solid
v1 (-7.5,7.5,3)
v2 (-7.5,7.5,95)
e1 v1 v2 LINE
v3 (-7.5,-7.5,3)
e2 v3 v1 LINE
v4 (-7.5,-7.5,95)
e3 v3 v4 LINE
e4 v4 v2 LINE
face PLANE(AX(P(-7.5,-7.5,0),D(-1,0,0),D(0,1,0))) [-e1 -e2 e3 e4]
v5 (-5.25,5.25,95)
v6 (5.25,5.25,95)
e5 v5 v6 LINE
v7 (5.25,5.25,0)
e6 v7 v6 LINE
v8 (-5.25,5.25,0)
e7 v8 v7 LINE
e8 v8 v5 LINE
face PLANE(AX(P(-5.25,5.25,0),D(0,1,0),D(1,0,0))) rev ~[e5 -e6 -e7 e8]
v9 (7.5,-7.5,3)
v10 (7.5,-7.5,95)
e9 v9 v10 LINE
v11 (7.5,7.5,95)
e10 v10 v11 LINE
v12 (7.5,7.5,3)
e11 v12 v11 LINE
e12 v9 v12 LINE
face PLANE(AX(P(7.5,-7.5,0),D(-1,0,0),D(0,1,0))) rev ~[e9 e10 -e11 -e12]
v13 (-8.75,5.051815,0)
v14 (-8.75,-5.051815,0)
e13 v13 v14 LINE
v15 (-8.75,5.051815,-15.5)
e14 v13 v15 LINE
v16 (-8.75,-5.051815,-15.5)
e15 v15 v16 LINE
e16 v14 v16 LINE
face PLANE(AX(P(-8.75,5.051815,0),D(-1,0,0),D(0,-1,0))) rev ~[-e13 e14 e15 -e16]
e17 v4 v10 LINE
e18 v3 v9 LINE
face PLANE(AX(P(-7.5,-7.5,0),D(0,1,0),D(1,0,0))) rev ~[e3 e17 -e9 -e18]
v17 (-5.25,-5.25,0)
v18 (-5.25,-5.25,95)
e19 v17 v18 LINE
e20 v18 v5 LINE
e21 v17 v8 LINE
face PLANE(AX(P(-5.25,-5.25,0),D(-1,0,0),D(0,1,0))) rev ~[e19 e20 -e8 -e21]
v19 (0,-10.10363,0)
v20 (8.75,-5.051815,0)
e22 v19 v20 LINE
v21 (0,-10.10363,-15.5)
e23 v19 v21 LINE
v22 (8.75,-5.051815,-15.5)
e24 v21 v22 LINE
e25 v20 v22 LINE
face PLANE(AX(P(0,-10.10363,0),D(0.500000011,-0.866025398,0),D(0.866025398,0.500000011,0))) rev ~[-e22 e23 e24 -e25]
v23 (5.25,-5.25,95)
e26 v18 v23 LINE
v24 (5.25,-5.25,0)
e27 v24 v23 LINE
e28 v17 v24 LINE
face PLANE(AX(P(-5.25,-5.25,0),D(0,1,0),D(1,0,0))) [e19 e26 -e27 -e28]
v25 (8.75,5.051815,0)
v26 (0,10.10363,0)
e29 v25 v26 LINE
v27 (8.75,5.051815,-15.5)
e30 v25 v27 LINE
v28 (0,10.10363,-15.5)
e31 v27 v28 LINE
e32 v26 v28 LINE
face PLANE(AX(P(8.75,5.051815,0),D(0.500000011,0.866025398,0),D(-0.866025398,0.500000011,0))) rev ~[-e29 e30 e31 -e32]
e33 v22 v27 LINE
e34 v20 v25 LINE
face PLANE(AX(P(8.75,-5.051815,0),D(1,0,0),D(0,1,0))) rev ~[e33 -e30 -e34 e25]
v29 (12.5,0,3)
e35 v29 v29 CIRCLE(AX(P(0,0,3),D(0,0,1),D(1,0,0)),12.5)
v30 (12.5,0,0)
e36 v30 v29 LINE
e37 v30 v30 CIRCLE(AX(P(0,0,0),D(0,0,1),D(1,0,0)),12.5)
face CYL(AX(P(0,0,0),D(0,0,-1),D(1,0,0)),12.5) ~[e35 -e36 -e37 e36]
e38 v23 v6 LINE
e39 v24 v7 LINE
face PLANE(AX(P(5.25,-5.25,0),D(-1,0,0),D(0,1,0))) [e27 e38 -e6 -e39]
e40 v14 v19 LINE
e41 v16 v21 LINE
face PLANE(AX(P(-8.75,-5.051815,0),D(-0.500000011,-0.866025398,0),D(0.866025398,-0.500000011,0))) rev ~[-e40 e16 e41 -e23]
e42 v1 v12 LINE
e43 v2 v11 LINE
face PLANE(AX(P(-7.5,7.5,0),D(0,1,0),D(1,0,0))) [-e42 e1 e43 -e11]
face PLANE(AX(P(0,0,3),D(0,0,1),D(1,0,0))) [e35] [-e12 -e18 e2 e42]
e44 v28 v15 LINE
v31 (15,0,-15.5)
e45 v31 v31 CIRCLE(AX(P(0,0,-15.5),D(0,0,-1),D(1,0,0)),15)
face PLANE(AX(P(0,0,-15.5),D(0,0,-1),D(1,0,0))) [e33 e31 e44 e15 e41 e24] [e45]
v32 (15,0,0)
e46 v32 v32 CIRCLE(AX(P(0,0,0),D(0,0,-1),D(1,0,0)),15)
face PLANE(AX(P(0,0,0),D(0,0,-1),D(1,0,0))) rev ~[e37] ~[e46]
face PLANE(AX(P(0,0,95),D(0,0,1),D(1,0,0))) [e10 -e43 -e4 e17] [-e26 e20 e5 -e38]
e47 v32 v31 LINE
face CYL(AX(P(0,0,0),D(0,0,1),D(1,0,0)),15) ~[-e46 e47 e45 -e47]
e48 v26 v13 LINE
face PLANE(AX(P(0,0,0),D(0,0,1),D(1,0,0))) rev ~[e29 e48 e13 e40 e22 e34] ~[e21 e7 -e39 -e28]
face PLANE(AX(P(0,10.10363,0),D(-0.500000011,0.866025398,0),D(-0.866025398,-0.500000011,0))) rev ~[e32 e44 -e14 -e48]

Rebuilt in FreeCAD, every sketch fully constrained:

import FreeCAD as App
import Part
import Sketcher
Q = App.Units.Quantity

doc = App.newDocument("Part")
body = doc.addObject("PartDesign::Body", "Body")

# Sketch on XY plane
sketch1 = doc.addObject("Sketcher::SketchObject", "Sketch")
body.addObject(sketch1)
sketch1.AttachmentSupport = (doc.XY_Plane, [""])
sketch1.MapMode = "FlatFace"
sketch1.addGeometry([
    Part.LineSegment(App.Vector(-8, 8, 0), App.Vector(-8, -8, 0)),  # 0
    Part.LineSegment(App.Vector(-8, -8, 0), App.Vector(8, -8, 0)),  # 1
    Part.LineSegment(App.Vector(8, -8, 0), App.Vector(8, 8, 0)),  # 2
    Part.LineSegment(App.Vector(8, 8, 0), App.Vector(-8, 8, 0)),  # 3
    Part.LineSegment(App.Vector(5, -5, 0), App.Vector(-5, -5, 0)),  # 4
    Part.LineSegment(App.Vector(-5, -5, 0), App.Vector(-5, 5, 0)),  # 5
    Part.LineSegment(App.Vector(-5, 5, 0), App.Vector(5, 5, 0)),  # 6
    Part.LineSegment(App.Vector(5, 5, 0), App.Vector(5, -5, 0)),  # 7
], False)
sketch1.addConstraint([
    Sketcher.Constraint("Coincident", 0, 2, 1, 1),
    Sketcher.Constraint("Coincident", 1, 2, 2, 1),
    Sketcher.Constraint("Coincident", 2, 2, 3, 1),
    Sketcher.Constraint("Coincident", 3, 2, 0, 1),
    Sketcher.Constraint("Coincident", 4, 2, 5, 1),
    Sketcher.Constraint("Coincident", 5, 2, 6, 1),
    Sketcher.Constraint("Coincident", 6, 2, 7, 1),
    Sketcher.Constraint("Coincident", 7, 2, 4, 1),
    Sketcher.Constraint("Vertical", 0),
    Sketcher.Constraint("Horizontal", 1),
    Sketcher.Constraint("Vertical", 2),
    Sketcher.Constraint("Horizontal", 3),
    Sketcher.Constraint("Horizontal", 4),
    Sketcher.Constraint("Vertical", 5),
    Sketcher.Constraint("Horizontal", 6),
    Sketcher.Constraint("Vertical", 7),
    Sketcher.Constraint("Symmetric", 0, 2, 2, 2, -1, 1),
    Sketcher.Constraint("Symmetric", 4, 2, 6, 2, -1, 1),
    Sketcher.Constraint("Equal", 3, 0),
    Sketcher.Constraint("Equal", 6, 5),
    Sketcher.Constraint("DistanceX", 1, 1, 1, 2, Q("15 mm")),
    Sketcher.Constraint("DistanceX", 4, 2, 4, 1, Q("10.5 mm")),
])
pad1 = doc.addObject("PartDesign::Pad", "Pad")
body.addObject(pad1)
pad1.Profile = sketch1
pad1.Length = 95

# Sketch on XY plane
sketch2 = doc.addObject("Sketcher::SketchObject", "Sketch001")
body.addObject(sketch2)
sketch2.AttachmentSupport = (doc.XY_Plane, [""])
sketch2.MapMode = "FlatFace"
sketch2.addGeometry([
    Part.Circle(App.Vector(0, 0, 0), App.Vector(0, 0, 1), 15),  # 0
    Part.LineSegment(App.Vector(9, 5, 0), App.Vector(0, 10, 0)),  # 1
    Part.LineSegment(App.Vector(0, 10, 0), App.Vector(-9, 5, 0)),  # 2
    Part.LineSegment(App.Vector(-9, 5, 0), App.Vector(-9, -5, 0)),  # 3
    Part.LineSegment(App.Vector(-9, -5, 0), App.Vector(0, -10, 0)),  # 4
    Part.LineSegment(App.Vector(0, -10, 0), App.Vector(9, -5, 0)),  # 5
    Part.LineSegment(App.Vector(9, -5, 0), App.Vector(9, 5, 0)),  # 6
], False)
sketch2.addConstraint([
    Sketcher.Constraint("Coincident", 1, 2, 2, 1),
    Sketcher.Constraint("Coincident", 2, 2, 3, 1),
    Sketcher.Constraint("Coincident", 3, 2, 4, 1),
    Sketcher.Constraint("Coincident", 4, 2, 5, 1),
    Sketcher.Constraint("Coincident", 5, 2, 6, 1),
    Sketcher.Constraint("Coincident", 6, 2, 1, 1),
    Sketcher.Constraint("Vertical", 3),
    Sketcher.Constraint("Vertical", 6),
    Sketcher.Constraint("Coincident", 0, 3, -1, 1),
    Sketcher.Constraint("Symmetric", 1, 2, 4, 2, -1, 1),
    Sketcher.Constraint("Symmetric", 2, 2, 5, 2, -1, 1),
    Sketcher.Constraint("PointOnObject", 1, 2, -2),
    Sketcher.Constraint("Parallel", 1, 4),
    Sketcher.Constraint("Horizontal", 3, 2, 5, 2),
    Sketcher.Constraint("Diameter", 0, Q("30 mm")),
    Sketcher.Constraint("Angle", 1, Q("149.999999 deg")),
    Sketcher.Constraint("DistanceX", 3, 2, 5, 2, Q("17.5 mm")),
    Sketcher.Constraint("DistanceY", 3, 2, 3, 1, Q("10.10363 mm")),
])
pad2 = doc.addObject("PartDesign::Pad", "Pad001")
body.addObject(pad2)
pad2.Profile = sketch2
pad2.Length = 15.5
pad2.Reversed = True

# Sketch on XY plane
sketch3 = doc.addObject("Sketcher::SketchObject", "Sketch002")
body.addObject(sketch3)
sketch3.AttachmentSupport = (doc.XY_Plane, [""])
sketch3.MapMode = "FlatFace"
sketch3.addGeometry([
    Part.Circle(App.Vector(0, 0, 0), App.Vector(0, 0, 1), 12),  # 0
    Part.LineSegment(App.Vector(8, -8, 0), App.Vector(-8, -8, 0)),  # 1
    Part.LineSegment(App.Vector(-8, -8, 0), App.Vector(-8, 8, 0)),  # 2
    Part.LineSegment(App.Vector(-8, 8, 0), App.Vector(8, 8, 0)),  # 3
    Part.LineSegment(App.Vector(8, 8, 0), App.Vector(8, -8, 0)),  # 4
], False)
sketch3.addConstraint([
    Sketcher.Constraint("Coincident", 1, 2, 2, 1),
    Sketcher.Constraint("Coincident", 2, 2, 3, 1),
    Sketcher.Constraint("Coincident", 3, 2, 4, 1),
    Sketcher.Constraint("Coincident", 4, 2, 1, 1),
    Sketcher.Constraint("Horizontal", 1),
    Sketcher.Constraint("Vertical", 2),
    Sketcher.Constraint("Horizontal", 3),
    Sketcher.Constraint("Vertical", 4),
    Sketcher.Constraint("Coincident", 0, 3, -1, 1),
    Sketcher.Constraint("Symmetric", 1, 2, 3, 2, -1, 1),
    Sketcher.Constraint("Equal", 3, 2),
    Sketcher.Constraint("Diameter", 0, Q("25 mm")),
    Sketcher.Constraint("DistanceX", 1, 2, 1, 1, Q("15 mm")),
])
pad3 = doc.addObject("PartDesign::Pad", "Pad002")
body.addObject(pad3)
pad3.Profile = sketch3
pad3.Length = 3

doc.recompute()
